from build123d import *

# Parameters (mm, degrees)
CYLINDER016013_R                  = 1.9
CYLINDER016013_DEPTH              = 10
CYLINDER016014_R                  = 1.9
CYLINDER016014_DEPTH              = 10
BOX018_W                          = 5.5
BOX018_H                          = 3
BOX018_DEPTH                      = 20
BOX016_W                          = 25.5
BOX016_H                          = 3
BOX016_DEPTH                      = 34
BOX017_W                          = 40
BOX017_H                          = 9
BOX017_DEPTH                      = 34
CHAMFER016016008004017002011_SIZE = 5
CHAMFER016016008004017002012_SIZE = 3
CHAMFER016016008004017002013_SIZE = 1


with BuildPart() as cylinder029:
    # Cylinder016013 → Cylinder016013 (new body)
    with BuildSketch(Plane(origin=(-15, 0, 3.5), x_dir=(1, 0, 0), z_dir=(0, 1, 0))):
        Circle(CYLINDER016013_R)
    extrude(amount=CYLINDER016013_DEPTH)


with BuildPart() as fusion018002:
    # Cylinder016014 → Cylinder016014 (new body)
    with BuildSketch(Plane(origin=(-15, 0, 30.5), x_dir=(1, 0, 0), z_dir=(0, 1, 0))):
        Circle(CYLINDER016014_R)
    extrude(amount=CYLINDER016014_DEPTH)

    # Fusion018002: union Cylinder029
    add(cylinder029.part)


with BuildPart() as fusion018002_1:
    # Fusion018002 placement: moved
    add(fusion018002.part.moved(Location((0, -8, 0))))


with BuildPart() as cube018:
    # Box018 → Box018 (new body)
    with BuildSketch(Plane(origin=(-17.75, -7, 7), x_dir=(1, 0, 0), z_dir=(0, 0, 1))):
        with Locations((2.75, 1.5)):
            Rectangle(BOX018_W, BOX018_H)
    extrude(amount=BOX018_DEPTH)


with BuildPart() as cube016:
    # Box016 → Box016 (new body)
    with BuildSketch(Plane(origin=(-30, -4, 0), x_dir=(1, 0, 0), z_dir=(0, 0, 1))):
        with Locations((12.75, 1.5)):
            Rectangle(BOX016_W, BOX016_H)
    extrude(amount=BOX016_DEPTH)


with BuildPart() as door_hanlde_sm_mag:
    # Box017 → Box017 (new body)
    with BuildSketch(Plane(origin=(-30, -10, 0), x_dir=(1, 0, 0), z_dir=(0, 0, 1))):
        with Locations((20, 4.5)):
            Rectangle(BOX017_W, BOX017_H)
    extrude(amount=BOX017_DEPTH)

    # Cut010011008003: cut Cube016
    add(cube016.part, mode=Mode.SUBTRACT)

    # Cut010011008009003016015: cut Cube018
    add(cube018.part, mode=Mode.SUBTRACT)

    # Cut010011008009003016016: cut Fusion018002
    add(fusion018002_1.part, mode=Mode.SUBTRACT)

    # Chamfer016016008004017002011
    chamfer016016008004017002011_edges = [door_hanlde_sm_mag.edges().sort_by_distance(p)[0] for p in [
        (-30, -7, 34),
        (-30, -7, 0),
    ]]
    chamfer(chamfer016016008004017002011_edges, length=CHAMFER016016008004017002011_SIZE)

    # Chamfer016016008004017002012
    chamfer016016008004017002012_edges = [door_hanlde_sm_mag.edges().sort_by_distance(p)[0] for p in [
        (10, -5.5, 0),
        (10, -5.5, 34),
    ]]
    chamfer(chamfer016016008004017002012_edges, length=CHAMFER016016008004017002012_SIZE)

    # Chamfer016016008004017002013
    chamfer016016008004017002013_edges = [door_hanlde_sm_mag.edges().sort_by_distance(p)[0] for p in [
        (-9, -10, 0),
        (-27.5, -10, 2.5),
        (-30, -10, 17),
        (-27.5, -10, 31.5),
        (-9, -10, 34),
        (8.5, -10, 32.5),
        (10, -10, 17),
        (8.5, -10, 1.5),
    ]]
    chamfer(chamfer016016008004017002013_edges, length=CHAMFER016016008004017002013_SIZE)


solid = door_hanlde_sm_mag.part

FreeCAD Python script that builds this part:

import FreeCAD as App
import Part
import Sketcher
from FreeCAD import Vector
Q = App.Units.Quantity


def edges_at(feature, points):
    """Names of the edges that pass closest to the given points."""
    edges = feature.Shape.Edges
    near = lambda p: min(range(len(edges)), key=lambda i: edges[i].distToShape(Part.Vertex(*p))[0])
    return sorted({f"Edge{near(p) + 1}" for p in points})

doc = App.newDocument("Part")
params = doc.addObject("Spreadsheet::Sheet", "Params")
for row, (alias, value) in enumerate([
    ("sketch1_diameter", "3.8 mm"),
    ("pad1_length", "10 mm"),
    ("sketch2_diameter", "3.8 mm"),
    ("pad2_length", "10 mm"),
    ("sketch3_height", "3 mm"),
    ("sketch3_width", "5.5 mm"),
    ("pad3_length", "20 mm"),
    ("sketch4_height", "3 mm"),
    ("sketch4_width", "25.5 mm"),
    ("pad4_length", "34 mm"),
    ("sketch5_width", "40 mm"),
    ("sketch5_height", "9 mm"),
    ("pad5_length", "34 mm"),
    ("chamfer_size", "5 mm"),
    ("chamfer2_size", "3 mm"),
    ("chamfer3_size", "1 mm"),
], start=1):
    params.set(f"A{row}", alias)
    params.set(f"B{row}", "=" + value)
    params.setAlias(f"B{row}", alias)

body = doc.addObject("PartDesign::Body", "Body")

# Sketch on XZ plane
sketch1 = doc.addObject("Sketcher::SketchObject", "Sketch")
body.addObject(sketch1)
sketch1.AttachmentSupport = (doc.XZ_Plane, [""])
sketch1.MapMode = "FlatFace"
sketch1.addGeometry(Part.Circle(Vector(-15, 3.5, 0), Vector(0, 0, 1), 1.9), False)
sketch1.addConstraint([
    Sketcher.Constraint("Diameter", 0, Q("3.8 mm")),
    Sketcher.Constraint("DistanceX", 0, 3, -1, 1, Q("15 mm")),
    Sketcher.Constraint("DistanceY", -1, 1, 0, 3, Q("3.5 mm")),
])
sketch1.setExpression("Constraints[0]", "Params.sketch1_diameter")
pad1 = doc.addObject("PartDesign::Pad", "Pad")
body.addObject(pad1)
pad1.Profile = sketch1
pad1.setExpression("Length", "Params.pad1_length")
pad1.Reversed = True
body2 = doc.addObject("PartDesign::Body", "Body001")
body2.AllowCompound = True

# Sketch on XZ plane
sketch2 = doc.addObject("Sketcher::SketchObject", "Sketch001")
body2.addObject(sketch2)
sketch2.AttachmentSupport = (doc.getObject("XZ_Plane001"), [""])
sketch2.MapMode = "FlatFace"
sketch2.addGeometry(Part.Circle(Vector(-15, 30.5, 0), Vector(0, 0, 1), 1.9), False)
sketch2.addConstraint([
    Sketcher.Constraint("Diameter", 0, Q("3.8 mm")),
    Sketcher.Constraint("DistanceX", 0, 3, -1, 1, Q("15 mm")),
    Sketcher.Constraint("DistanceY", -1, 1, 0, 3, Q("30.5 mm")),
])
sketch2.setExpression("Constraints[0]", "Params.sketch2_diameter")
pad2 = doc.addObject("PartDesign::Pad", "Pad001")
body2.addObject(pad2)
pad2.Profile = sketch2
pad2.setExpression("Length", "Params.pad2_length")
pad2.Reversed = True
doc.recompute()

boolean = doc.addObject("PartDesign::Boolean", "Boolean")
body2.addObject(boolean)
boolean.Type = "Fuse"
boolean.addObjects([body])
body3 = doc.addObject("PartDesign::Body", "Body002")
body3.AllowCompound = True
doc.recompute()

body2.Placement = App.Placement(Vector(0, -8, 0), App.Rotation(Vector(0, 0, 1), 0))
boolean2 = doc.addObject("PartDesign::Boolean", "Boolean001")
body3.addObject(boolean2)
boolean2.Type = "Fuse"
boolean2.addObjects([body2])
body4 = doc.addObject("PartDesign::Body", "Body003")

# Sketch on XY plane
sketch3 = doc.addObject("Sketcher::SketchObject", "Sketch002")
body4.addObject(sketch3)
sketch3.AttachmentSupport = (doc.getObject("XY_Plane003"), [""])
sketch3.MapMode = "FlatFace"
sketch3.AttachmentOffset = App.Placement(Vector(0, 0, 7), App.Rotation())
sketch3.addGeometry([
    Part.LineSegment(Vector(-17.8, -4, 0), Vector(-17.8, -7, 0)),
    Part.LineSegment(Vector(-17.8, -7, 0), Vector(-12.2, -7, 0)),
    Part.LineSegment(Vector(-12.2, -7, 0), Vector(-12.2, -4, 0)),
    Part.LineSegment(Vector(-12.2, -4, 0), Vector(-17.8, -4, 0)),
], False)
sketch3.addConstraint([
    Sketcher.Constraint("Coincident", 0, 2, 1, 1),
    Sketcher.Constraint("Coincident", 1, 2, 2, 1),
    Sketcher.Constraint("Coincident", 2, 2, 3, 1),
    Sketcher.Constraint("Coincident", 3, 2, 0, 1),
    Sketcher.Constraint("Vertical", 0),
    Sketcher.Constraint("Horizontal", 1),
    Sketcher.Constraint("Vertical", 2),
    Sketcher.Constraint("Horizontal", 3),
    Sketcher.Constraint("DistanceY", 0, 2, 0, 1, Q("3 mm")),
    Sketcher.Constraint("DistanceX", 1, 1, 1, 2, Q("5.5 mm")),
    Sketcher.Constraint("DistanceY", 0, 2, -1, 1, Q("7 mm")),
    Sketcher.Constraint("DistanceX", 0, 2, -1, 1, Q("17.75 mm")),
])
sketch3.setExpression("Constraints[8]", "Params.sketch3_height")
sketch3.setExpression("Constraints[9]", "Params.sketch3_width")
pad3 = doc.addObject("PartDesign::Pad", "Pad002")
body4.addObject(pad3)
pad3.Profile = sketch3
pad3.setExpression("Length", "Params.pad3_length")
body5 = doc.addObject("PartDesign::Body", "Body004")

# Sketch on XY plane
sketch4 = doc.addObject("Sketcher::SketchObject", "Sketch003")
body5.addObject(sketch4)
sketch4.AttachmentSupport = (doc.getObject("XY_Plane004"), [""])
sketch4.MapMode = "FlatFace"
sketch4.addGeometry([
    Part.LineSegment(Vector(-30, -1, 0), Vector(-30, -4, 0)),
    Part.LineSegment(Vector(-30, -4, 0), Vector(-4.5, -4, 0)),
    Part.LineSegment(Vector(-4.5, -4, 0), Vector(-4.5, -1, 0)),
    Part.LineSegment(Vector(-4.5, -1, 0), Vector(-30, -1, 0)),
], False)
sketch4.addConstraint([
    Sketcher.Constraint("Coincident", 0, 2, 1, 1),
    Sketcher.Constraint("Coincident", 1, 2, 2, 1),
    Sketcher.Constraint("Coincident", 2, 2, 3, 1),
    Sketcher.Constraint("Coincident", 3, 2, 0, 1),
    Sketcher.Constraint("Vertical", 0),
    Sketcher.Constraint("Horizontal", 1),
    Sketcher.Constraint("Vertical", 2),
    Sketcher.Constraint("Horizontal", 3),
    Sketcher.Constraint("DistanceY", 0, 2, 0, 1, Q("3 mm")),
    Sketcher.Constraint("DistanceX", 1, 1, 1, 2, Q("25.5 mm")),
    Sketcher.Constraint("DistanceX", 0, 2, -1, 1, Q("30 mm")),
    Sketcher.Constraint("DistanceY", 0, 2, -1, 1, Q("4 mm")),
])
sketch4.setExpression("Constraints[8]", "Params.sketch4_height")
sketch4.setExpression("Constraints[9]", "Params.sketch4_width")
pad4 = doc.addObject("PartDesign::Pad", "Pad003")
body5.addObject(pad4)
pad4.Profile = sketch4
pad4.setExpression("Length", "Params.pad4_length")
body6 = doc.addObject("PartDesign::Body", "Body005")

# Sketch on XY plane
sketch5 = doc.addObject("Sketcher::SketchObject", "Sketch004")
body6.addObject(sketch5)
sketch5.AttachmentSupport = (doc.getObject("XY_Plane005"), [""])
sketch5.MapMode = "FlatFace"
sketch5.addGeometry([
    Part.LineSegment(Vector(-30, -1, 0), Vector(-30, -10, 0)),
    Part.LineSegment(Vector(-30, -10, 0), Vector(10, -10, 0)),
    Part.LineSegment(Vector(10, -10, 0), Vector(10, -1, 0)),
    Part.LineSegment(Vector(10, -1, 0), Vector(-30, -1, 0)),
], False)
sketch5.addConstraint([
    Sketcher.Constraint("Coincident", 0, 2, 1, 1),
    Sketcher.Constraint("Coincident", 1, 2, 2, 1),
    Sketcher.Constraint("Coincident", 2, 2, 3, 1),
    Sketcher.Constraint("Coincident", 3, 2, 0, 1),
    Sketcher.Constraint("Vertical", 0),
    Sketcher.Constraint("Horizontal", 1),
    Sketcher.Constraint("Vertical", 2),
    Sketcher.Constraint("Horizontal", 3),
    Sketcher.Constraint("DistanceX", 1, 1, 1, 2, Q("40 mm")),
    Sketcher.Constraint("DistanceY", 0, 2, 0, 1, Q("9 mm")),
    Sketcher.Constraint("DistanceX", 0, 2, -1, 1, Q("30 mm")),
    Sketcher.Constraint("DistanceY", 0, 2, -1, 1, Q("10 mm")),
])
sketch5.setExpression("Constraints[8]", "Params.sketch5_width")
sketch5.setExpression("Constraints[9]", "Params.sketch5_height")
pad5 = doc.addObject("PartDesign::Pad", "Pad004")
body6.addObject(pad5)
pad5.Profile = sketch5
pad5.setExpression("Length", "Params.pad5_length")
doc.recompute()

boolean3 = doc.addObject("PartDesign::Boolean", "Boolean002")
body6.addObject(boolean3)
boolean3.Type = "Cut"
boolean3.addObjects([body5])
doc.recompute()

boolean4 = doc.addObject("PartDesign::Boolean", "Boolean003")
body6.addObject(boolean4)
boolean4.Type = "Cut"
boolean4.addObjects([body4])
doc.recompute()

boolean5 = doc.addObject("PartDesign::Boolean", "Boolean004")
body6.addObject(boolean5)
boolean5.Type = "Cut"
boolean5.addObjects([body3])
doc.recompute()

chamfer = doc.addObject("PartDesign::Chamfer", "Chamfer")
body6.addObject(chamfer)
chamfer.Base = (boolean5, edges_at(boolean5, [(-30, -7, 34), (-30, -7, 0)]))
chamfer.setExpression("Size", "Params.chamfer_size")
doc.recompute()

chamfer2 = doc.addObject("PartDesign::Chamfer", "Chamfer001")
body6.addObject(chamfer2)
chamfer2.Base = (chamfer, edges_at(chamfer, [(10, -5.5, 0), (10, -5.5, 34)]))
chamfer2.setExpression("Size", "Params.chamfer2_size")
doc.recompute()

chamfer3 = doc.addObject("PartDesign::Chamfer", "Chamfer002")
body6.addObject(chamfer3)
chamfer3.Base = (chamfer2, edges_at(chamfer2, [
    (-9, -10, 0),
    (-27.5, -10, 2.5),
    (-30, -10, 17),
    (-27.5, -10, 31.5),
    (-9, -10, 34),
    (8.5, -10, 32.5),
    (10, -10, 17),
    (8.5, -10, 1.5),
]))
chamfer3.setExpression("Size", "Params.chamfer3_size")

doc.recompute()
